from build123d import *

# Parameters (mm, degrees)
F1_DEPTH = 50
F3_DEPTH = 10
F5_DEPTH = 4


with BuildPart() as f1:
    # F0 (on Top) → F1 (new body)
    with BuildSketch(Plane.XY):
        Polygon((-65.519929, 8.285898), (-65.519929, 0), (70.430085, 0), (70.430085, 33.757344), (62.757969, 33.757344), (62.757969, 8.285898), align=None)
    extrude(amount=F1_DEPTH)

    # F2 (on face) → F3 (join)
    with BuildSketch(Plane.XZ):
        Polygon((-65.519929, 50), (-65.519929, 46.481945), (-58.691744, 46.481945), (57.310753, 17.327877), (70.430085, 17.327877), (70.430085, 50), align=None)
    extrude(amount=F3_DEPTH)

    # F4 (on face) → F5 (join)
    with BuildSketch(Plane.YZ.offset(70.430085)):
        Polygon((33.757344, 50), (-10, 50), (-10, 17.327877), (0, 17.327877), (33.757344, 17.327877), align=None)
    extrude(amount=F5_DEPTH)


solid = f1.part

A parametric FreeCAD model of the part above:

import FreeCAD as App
import Part
import Sketcher

V = App.Vector


def add_polygon(sketch, points):
    """Adds a closed chain of lines whose ends are joined by coincident constraints."""
    first, n = sketch.GeometryCount, len(points)
    for a, b in zip(points, points[1:] + points[:1]):
        sketch.addGeometry(Part.LineSegment(App.Vector(*a, 0), App.Vector(*b, 0)), False)
    for i in range(n):
        sketch.addConstraint(Sketcher.Constraint("Coincident", first + i, 2, first + (i + 1) % n, 1))

doc = App.newDocument("Part")
body = doc.addObject("PartDesign::Body", "Body")

# Sketch on XY plane
sketch1 = body.newObject("Sketcher::SketchObject", "Sketch")
sketch1.AttachmentSupport = (doc.getObject("XY_Plane"), [""])
sketch1.MapMode = "FlatFace"
add_polygon(sketch1, [(-65.519929, 8.285898), (-65.519929, 0), (70.430085, 0), (70.430085, 33.757344), (62.757969, 33.757344), (62.757969, 8.285898)])  # lines 0-5
sketch1.addConstraint([
    Sketcher.Constraint("Vertical", 0),
    Sketcher.Constraint("Horizontal", 1),
    Sketcher.Constraint("Vertical", 2),
    Sketcher.Constraint("Horizontal", 3),
    Sketcher.Constraint("Vertical", 4),
    Sketcher.Constraint("Horizontal", 5),
    Sketcher.Constraint("PointOnObject", 0, 2, -1),
    Sketcher.Constraint("DistanceX", 5, 2, 5, 1, 128.277898),
    Sketcher.Constraint("DistanceX", 1, 1, 1, 2, 135.950014),
    Sketcher.Constraint("DistanceY", 0, 2, 0, 1, 8.285898),
    Sketcher.Constraint("DistanceY", 2, 1, 2, 2, 33.757344),
    Sketcher.Constraint("DistanceX", 0, 2, -1, 1, 65.519929),
])
pad1 = body.newObject("PartDesign::Pad", "Pad")
pad1.Profile = sketch1
pad1.Length = 50

# Sketch on XZ plane
sketch2 = body.newObject("Sketcher::SketchObject", "Sketch001")
sketch2.AttachmentSupport = (doc.getObject("XZ_Plane"), [""])
sketch2.MapMode = "FlatFace"
add_polygon(sketch2, [(-65.519929, 50), (-65.519929, 46.481945), (-58.691744, 46.481945), (57.310753, 17.327877), (70.430085, 17.327877), (70.430085, 50)])  # lines 0-5
sketch2.addConstraint([
    Sketcher.Constraint("Vertical", 0),
    Sketcher.Constraint("Horizontal", 1),
    Sketcher.Constraint("Horizontal", 3),
    Sketcher.Constraint("Vertical", 4),
    Sketcher.Constraint("Horizontal", 5),
    Sketcher.Constraint("DistanceY", -1, 1, 4, 2, 50.0),
    Sketcher.Constraint("DistanceX", 1, 1, 1, 2, 6.828185),
    Sketcher.Constraint("DistanceX", 3, 1, 3, 2, 13.119332),
    Sketcher.Constraint("DistanceX", 5, 2, 5, 1, 135.950014),
    Sketcher.Constraint("DistanceY", 0, 2, 0, 1, 3.518055),
    Sketcher.Constraint("DistanceY", 4, 1, 4, 2, 32.672123),
    Sketcher.Constraint("DistanceX", 0, 2, -1, 1, 65.519929),
])
pad2 = body.newObject("PartDesign::Pad", "Pad001")
pad2.Profile = sketch2
pad2.Length = 10

# Sketch on YZ plane
sketch3 = body.newObject("Sketcher::SketchObject", "Sketch002")
sketch3.AttachmentSupport = (doc.getObject("YZ_Plane"), [""])
sketch3.MapMode = "FlatFace"
sketch3.AttachmentOffset = App.Placement(V(0, 0, 70.430085), App.Rotation())
add_polygon(sketch3, [(33.757344, 50), (-10, 50), (-10, 17.327877), (33.757344, 17.327877)])  # lines 0-3
sketch3.addConstraint([
    Sketcher.Constraint("Horizontal", 0),
    Sketcher.Constraint("Vertical", 1),
    Sketcher.Constraint("Horizontal", 2),
    Sketcher.Constraint("Vertical", 3),
    Sketcher.Constraint("DistanceX", 0, 2, -1, 1, 10.0),
    Sketcher.Constraint("DistanceY", -1, 1, 0, 2, 50.0),
    Sketcher.Constraint("DistanceX", 0, 2, 0, 1, 43.757344),
    Sketcher.Constraint("DistanceY", 1, 2, 1, 1, 32.672123),
])
pad3 = body.newObject("PartDesign::Pad", "Pad002")
pad3.Profile = sketch3
pad3.Length = 4

doc.recompute()
